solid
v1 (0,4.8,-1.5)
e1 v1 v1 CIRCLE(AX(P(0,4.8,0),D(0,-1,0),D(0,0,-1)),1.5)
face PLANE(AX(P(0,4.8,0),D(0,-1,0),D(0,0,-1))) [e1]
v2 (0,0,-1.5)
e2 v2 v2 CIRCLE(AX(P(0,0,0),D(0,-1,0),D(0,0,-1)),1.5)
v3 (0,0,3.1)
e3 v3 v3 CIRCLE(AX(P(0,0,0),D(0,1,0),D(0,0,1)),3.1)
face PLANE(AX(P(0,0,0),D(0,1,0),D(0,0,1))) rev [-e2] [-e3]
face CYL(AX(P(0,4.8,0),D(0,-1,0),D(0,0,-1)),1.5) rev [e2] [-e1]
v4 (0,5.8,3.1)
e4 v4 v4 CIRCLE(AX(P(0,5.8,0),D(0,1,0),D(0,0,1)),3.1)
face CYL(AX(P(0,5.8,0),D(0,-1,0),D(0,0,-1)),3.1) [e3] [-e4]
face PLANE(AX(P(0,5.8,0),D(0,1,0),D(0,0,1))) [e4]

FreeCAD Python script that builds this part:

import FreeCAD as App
import Part
import Sketcher

V = App.Vector
Q = App.Units.Quantity

doc = App.newDocument("Part")
body = doc.addObject("PartDesign::Body", "Body")

sketch1 = body.newObject("Sketcher::SketchObject", "Sketch")
sketch1.AttachmentSupport = (doc.getObject("XZ_Plane"), [""])
sketch1.MapMode = "FlatFace"
sketch1.addGeometry(Part.Circle(V(0, 0, 0), V(0, 0, 1), 3.1), False)
sketch1.addConstraint(Sketcher.Constraint("Coincident", 0, 3, -1, 1))
sketch1.addConstraint(Sketcher.Constraint("Diameter", 0, Q("6.2 mm")))
pad1 = body.newObject("PartDesign::Pad", "Pad")
pad1.Profile = sketch1
pad1.Length = 5.8
pad1.Reversed = True

sketch2 = body.newObject("Sketcher::SketchObject", "Sketch001")
sketch2.AttachmentSupport = (doc.getObject("XZ_Plane"), [""])
sketch2.MapMode = "FlatFace"
sketch2.addGeometry(Part.Circle(V(0, 0, 0), V(0, 0, 1), 1.5), False)
sketch2.addConstraint(Sketcher.Constraint("Coincident", 0, 3, -1, 1))
sketch2.addConstraint(Sketcher.Constraint("Diameter", 0, Q("3 mm")))
pocket1 = body.newObject("PartDesign::Pocket", "Pocket")
pocket1.Profile = sketch2
pocket1.Length = 4.8

doc.recompute()
